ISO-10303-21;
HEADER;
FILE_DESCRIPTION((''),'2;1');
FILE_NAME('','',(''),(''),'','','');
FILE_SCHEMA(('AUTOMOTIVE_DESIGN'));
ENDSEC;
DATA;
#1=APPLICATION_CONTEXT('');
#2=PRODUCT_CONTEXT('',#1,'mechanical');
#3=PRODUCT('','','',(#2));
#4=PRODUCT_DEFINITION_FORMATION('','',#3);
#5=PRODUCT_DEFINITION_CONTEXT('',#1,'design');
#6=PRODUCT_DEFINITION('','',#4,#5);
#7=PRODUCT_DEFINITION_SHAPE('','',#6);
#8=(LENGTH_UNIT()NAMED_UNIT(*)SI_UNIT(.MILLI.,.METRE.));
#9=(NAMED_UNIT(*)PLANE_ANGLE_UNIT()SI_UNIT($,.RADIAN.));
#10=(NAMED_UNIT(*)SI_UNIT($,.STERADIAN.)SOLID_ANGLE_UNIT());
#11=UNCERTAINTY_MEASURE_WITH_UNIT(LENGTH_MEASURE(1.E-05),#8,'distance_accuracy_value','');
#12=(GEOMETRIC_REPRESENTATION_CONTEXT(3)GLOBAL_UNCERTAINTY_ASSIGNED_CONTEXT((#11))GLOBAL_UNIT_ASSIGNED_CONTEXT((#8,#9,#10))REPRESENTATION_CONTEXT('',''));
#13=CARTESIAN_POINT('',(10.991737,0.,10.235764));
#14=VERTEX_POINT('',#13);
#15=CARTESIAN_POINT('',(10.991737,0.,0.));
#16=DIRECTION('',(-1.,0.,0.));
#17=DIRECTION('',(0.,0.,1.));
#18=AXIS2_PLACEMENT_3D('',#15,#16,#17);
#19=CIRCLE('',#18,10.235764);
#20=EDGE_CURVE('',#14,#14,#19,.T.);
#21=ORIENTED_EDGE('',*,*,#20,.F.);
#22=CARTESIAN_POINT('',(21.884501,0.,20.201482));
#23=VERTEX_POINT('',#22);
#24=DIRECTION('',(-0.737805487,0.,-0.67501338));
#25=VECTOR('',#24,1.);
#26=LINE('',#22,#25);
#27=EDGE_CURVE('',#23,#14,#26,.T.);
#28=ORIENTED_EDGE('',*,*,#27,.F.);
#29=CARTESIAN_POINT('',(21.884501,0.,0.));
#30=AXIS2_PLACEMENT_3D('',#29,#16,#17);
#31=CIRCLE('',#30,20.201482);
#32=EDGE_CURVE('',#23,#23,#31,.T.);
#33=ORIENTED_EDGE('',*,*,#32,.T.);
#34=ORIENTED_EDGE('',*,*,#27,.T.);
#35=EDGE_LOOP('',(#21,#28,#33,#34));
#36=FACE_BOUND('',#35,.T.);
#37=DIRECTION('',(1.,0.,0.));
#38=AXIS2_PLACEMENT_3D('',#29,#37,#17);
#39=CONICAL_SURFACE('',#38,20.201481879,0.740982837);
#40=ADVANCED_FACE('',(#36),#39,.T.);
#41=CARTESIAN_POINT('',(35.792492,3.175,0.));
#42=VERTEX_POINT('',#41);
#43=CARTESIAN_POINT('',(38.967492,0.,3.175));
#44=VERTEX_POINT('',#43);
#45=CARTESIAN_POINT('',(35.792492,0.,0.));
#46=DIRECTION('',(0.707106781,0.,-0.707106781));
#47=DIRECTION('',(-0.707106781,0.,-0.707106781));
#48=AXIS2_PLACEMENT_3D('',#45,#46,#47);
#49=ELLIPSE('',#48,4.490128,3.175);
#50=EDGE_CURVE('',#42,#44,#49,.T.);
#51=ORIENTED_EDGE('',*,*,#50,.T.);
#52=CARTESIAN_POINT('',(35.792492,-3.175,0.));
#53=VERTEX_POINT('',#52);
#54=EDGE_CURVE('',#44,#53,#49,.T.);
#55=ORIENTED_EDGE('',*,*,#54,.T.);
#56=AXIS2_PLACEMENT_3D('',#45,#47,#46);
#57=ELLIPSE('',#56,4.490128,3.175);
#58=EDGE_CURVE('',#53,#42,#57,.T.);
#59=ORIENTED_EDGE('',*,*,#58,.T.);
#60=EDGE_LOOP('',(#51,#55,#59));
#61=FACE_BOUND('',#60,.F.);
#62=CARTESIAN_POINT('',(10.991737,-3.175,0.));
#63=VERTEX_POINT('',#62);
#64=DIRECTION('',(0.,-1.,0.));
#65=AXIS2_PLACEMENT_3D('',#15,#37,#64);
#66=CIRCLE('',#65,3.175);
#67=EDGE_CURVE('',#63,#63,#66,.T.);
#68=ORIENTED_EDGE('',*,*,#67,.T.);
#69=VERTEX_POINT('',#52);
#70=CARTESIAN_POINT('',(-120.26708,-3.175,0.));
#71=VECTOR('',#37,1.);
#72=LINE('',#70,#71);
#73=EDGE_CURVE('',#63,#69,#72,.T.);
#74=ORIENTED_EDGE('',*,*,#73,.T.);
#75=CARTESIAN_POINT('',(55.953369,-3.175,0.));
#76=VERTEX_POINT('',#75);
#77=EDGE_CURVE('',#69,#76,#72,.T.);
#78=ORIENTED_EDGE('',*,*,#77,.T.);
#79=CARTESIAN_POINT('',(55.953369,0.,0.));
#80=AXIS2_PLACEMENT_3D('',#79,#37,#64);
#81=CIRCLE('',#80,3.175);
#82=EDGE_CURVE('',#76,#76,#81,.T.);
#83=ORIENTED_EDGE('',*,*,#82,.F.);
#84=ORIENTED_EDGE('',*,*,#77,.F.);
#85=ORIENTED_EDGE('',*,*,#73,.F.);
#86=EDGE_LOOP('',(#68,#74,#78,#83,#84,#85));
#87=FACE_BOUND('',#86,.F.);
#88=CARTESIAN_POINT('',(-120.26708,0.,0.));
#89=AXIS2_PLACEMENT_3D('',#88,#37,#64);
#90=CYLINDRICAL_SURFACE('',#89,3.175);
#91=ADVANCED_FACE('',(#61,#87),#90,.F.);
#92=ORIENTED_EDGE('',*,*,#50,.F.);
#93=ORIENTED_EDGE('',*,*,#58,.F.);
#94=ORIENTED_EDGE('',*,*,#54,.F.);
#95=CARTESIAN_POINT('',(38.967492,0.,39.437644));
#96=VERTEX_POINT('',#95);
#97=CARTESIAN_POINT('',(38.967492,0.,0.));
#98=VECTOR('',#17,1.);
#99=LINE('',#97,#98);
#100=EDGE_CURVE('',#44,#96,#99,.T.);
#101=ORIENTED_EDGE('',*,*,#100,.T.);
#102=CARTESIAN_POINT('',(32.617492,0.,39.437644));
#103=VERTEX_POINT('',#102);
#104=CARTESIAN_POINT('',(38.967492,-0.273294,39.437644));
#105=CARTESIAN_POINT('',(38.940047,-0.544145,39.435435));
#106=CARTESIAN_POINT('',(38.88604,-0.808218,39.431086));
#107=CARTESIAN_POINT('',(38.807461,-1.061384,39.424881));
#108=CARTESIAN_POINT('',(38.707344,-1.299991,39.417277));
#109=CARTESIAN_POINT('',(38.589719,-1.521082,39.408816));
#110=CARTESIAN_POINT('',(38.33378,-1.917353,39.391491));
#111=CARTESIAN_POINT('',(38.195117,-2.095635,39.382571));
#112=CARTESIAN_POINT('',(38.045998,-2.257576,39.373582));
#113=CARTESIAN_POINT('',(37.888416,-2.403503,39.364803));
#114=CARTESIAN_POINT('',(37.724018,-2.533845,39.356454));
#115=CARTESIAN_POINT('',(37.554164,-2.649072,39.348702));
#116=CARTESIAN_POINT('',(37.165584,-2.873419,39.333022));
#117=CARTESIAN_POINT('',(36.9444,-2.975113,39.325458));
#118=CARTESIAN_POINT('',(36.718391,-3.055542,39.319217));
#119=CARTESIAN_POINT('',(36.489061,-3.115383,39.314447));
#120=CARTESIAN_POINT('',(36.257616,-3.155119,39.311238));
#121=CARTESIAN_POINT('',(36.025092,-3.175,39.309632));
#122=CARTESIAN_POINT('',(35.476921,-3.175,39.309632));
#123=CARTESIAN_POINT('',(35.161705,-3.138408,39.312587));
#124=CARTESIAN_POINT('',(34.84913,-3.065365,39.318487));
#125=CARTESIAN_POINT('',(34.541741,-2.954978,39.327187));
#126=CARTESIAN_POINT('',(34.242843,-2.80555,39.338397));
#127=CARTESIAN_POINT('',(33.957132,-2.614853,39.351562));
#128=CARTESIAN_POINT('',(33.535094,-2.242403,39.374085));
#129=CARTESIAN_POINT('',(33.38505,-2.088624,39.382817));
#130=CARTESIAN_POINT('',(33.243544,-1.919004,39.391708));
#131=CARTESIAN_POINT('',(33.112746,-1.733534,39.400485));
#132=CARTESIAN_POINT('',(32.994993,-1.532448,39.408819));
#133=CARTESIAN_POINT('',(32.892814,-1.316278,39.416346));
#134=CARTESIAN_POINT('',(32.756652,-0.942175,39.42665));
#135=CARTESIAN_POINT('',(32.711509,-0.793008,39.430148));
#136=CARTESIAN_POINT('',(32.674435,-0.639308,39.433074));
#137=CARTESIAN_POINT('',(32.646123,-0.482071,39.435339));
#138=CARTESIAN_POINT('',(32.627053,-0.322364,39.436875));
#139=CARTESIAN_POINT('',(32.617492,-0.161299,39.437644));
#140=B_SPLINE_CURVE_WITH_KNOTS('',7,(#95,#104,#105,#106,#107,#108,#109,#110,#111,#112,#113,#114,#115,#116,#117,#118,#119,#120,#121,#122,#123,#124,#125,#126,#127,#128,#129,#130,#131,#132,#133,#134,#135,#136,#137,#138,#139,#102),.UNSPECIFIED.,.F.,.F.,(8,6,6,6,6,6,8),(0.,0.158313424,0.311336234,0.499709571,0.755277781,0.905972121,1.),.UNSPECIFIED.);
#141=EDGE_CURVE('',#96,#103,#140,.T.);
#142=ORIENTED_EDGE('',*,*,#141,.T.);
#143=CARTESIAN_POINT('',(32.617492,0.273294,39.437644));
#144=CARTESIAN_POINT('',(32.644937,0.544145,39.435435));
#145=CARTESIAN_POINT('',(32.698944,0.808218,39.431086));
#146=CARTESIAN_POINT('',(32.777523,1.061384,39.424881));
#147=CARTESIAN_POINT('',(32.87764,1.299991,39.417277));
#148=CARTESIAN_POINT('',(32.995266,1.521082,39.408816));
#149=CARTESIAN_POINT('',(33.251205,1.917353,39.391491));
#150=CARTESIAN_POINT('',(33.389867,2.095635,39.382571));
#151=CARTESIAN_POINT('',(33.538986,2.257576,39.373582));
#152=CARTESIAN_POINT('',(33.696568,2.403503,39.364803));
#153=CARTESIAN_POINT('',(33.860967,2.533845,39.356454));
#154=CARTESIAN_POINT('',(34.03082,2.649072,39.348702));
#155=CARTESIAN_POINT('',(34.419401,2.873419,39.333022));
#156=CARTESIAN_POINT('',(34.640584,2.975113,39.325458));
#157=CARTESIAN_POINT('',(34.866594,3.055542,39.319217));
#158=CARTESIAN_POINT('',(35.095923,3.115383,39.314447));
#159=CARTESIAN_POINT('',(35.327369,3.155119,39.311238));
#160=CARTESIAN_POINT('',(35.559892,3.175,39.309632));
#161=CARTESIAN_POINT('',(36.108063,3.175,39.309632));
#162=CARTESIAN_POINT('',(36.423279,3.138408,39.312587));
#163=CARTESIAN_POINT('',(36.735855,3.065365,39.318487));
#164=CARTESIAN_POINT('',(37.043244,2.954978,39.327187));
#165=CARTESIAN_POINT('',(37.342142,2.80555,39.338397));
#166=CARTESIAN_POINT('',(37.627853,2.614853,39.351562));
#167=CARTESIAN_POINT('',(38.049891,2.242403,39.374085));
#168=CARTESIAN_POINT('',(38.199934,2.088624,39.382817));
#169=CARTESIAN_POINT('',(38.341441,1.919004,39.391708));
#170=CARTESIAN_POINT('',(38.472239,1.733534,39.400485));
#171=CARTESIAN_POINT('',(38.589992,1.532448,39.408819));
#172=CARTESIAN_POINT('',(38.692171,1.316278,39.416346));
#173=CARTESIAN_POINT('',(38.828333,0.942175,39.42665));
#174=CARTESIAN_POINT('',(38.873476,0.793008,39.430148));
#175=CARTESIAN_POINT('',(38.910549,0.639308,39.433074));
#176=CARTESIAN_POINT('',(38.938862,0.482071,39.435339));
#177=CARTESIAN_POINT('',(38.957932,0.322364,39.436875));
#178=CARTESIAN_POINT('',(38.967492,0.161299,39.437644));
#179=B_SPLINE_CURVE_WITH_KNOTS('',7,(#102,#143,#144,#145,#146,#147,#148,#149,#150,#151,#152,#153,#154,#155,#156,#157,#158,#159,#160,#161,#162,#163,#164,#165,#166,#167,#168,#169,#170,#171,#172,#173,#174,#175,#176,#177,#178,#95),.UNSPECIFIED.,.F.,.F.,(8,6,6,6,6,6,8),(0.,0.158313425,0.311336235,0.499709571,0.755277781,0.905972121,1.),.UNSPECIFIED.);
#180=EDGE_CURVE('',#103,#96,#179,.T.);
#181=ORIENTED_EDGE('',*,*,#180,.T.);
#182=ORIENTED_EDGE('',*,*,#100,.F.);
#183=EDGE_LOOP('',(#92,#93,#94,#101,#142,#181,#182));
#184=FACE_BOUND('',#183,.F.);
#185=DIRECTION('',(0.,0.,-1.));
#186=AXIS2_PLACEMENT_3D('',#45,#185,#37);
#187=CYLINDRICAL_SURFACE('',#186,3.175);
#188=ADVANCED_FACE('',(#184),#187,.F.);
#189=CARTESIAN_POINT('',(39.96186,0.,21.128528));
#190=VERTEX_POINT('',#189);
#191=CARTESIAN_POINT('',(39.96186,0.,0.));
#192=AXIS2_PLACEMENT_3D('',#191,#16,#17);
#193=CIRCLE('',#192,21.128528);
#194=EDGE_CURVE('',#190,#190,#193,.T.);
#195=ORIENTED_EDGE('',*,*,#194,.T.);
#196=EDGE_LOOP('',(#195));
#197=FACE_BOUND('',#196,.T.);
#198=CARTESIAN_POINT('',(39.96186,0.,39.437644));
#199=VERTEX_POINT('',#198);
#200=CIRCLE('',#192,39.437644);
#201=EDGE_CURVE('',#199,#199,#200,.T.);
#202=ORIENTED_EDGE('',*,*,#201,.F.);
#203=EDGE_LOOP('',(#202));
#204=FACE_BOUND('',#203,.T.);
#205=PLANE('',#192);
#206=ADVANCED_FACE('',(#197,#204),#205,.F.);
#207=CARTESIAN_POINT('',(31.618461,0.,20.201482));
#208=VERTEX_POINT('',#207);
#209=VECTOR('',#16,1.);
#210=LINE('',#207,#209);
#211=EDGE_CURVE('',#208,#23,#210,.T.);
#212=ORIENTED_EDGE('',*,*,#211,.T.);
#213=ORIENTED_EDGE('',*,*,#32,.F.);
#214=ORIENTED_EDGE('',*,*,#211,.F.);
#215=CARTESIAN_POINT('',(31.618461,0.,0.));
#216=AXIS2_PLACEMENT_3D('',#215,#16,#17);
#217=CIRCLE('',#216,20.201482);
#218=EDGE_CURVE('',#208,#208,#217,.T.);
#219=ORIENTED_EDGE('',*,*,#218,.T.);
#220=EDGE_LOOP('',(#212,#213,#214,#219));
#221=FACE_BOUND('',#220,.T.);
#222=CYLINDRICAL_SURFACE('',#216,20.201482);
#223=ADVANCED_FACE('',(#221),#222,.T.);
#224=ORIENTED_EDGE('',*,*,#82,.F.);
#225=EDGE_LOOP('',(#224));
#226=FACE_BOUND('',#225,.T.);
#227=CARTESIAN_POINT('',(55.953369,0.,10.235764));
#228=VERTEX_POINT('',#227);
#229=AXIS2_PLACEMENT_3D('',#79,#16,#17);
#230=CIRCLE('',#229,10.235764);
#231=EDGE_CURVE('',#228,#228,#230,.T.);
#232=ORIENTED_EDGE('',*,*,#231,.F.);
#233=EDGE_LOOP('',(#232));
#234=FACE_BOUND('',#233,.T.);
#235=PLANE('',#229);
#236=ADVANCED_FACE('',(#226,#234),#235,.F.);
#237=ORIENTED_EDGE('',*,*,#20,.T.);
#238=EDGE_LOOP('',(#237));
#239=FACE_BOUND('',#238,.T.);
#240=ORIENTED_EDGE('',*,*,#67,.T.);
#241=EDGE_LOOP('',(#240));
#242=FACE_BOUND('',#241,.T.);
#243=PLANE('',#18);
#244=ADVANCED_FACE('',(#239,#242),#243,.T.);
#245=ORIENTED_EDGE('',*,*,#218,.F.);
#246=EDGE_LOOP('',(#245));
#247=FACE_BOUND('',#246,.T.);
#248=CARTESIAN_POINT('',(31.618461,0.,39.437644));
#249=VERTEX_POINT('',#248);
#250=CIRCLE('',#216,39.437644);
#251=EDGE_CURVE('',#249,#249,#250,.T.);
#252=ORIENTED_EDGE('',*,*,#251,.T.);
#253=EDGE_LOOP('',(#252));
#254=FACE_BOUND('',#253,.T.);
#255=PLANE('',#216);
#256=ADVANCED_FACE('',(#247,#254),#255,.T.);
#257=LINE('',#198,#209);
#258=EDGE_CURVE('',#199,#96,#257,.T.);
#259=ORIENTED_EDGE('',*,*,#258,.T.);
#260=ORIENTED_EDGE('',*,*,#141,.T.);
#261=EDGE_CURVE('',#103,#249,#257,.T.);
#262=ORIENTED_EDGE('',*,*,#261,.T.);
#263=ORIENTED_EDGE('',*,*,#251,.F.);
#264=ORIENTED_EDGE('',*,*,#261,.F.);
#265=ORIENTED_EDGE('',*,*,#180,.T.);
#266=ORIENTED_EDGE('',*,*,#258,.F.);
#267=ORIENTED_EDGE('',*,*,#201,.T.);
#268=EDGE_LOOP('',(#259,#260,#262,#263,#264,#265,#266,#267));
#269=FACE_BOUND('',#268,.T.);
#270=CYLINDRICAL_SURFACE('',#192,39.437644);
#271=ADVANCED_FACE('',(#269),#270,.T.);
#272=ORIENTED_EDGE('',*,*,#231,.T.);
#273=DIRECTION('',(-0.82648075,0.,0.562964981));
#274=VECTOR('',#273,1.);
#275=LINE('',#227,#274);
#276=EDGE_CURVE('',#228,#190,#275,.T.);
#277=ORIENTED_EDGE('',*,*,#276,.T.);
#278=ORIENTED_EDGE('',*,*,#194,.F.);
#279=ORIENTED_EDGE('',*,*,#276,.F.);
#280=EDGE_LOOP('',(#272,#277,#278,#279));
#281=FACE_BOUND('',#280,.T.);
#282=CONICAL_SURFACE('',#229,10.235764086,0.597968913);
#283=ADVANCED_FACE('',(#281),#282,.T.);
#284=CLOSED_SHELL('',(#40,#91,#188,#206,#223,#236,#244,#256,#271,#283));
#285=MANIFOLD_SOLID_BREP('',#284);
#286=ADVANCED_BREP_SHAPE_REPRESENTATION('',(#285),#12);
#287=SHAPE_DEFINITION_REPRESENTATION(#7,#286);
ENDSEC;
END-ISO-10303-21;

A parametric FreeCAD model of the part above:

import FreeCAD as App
import Part
import Sketcher

V = App.Vector
Q = App.Units.Quantity

doc = App.newDocument("Part")
body = doc.addObject("PartDesign::Body", "Body")

# Sketch on XZ plane
sketch1 = body.newObject("Sketcher::SketchObject", "Sketch")
sketch1.AttachmentSupport = (doc.getObject("XZ_Plane"), [""])
sketch1.MapMode = "FlatFace"
sketch1.addGeometry([
    Part.LineSegment(V(11, 10, 0), V(11, 0, 0)),  # 0
    Part.LineSegment(V(11, 0, 0), V(56, 0, 0)),  # 1
    Part.LineSegment(V(56, 0, 0), V(56, 10, 0)),  # 2
    Part.LineSegment(V(56, 10, 0), V(40, 21, 0)),  # 3
    Part.LineSegment(V(40, 21, 0), V(40, 39, 0)),  # 4
    Part.LineSegment(V(40, 39, 0), V(32, 39, 0)),  # 5
    Part.LineSegment(V(32, 39, 0), V(32, 20, 0)),  # 6
    Part.LineSegment(V(32, 20, 0), V(22, 20, 0)),  # 7
    Part.LineSegment(V(22, 20, 0), V(11, 10, 0)),  # 8
], False)
sketch1.addConstraint([
    Sketcher.Constraint("Coincident", 0, 2, 1, 1),
    Sketcher.Constraint("Coincident", 1, 2, 2, 1),
    Sketcher.Constraint("Coincident", 2, 2, 3, 1),
    Sketcher.Constraint("Coincident", 3, 2, 4, 1),
    Sketcher.Constraint("Coincident", 4, 2, 5, 1),
    Sketcher.Constraint("Coincident", 5, 2, 6, 1),
    Sketcher.Constraint("Coincident", 6, 2, 7, 1),
    Sketcher.Constraint("Coincident", 7, 2, 8, 1),
    Sketcher.Constraint("Coincident", 8, 2, 0, 1),
    Sketcher.Constraint("Vertical", 0),
    Sketcher.Constraint("Horizontal", 1),
    Sketcher.Constraint("Vertical", 2),
    Sketcher.Constraint("Vertical", 4),
    Sketcher.Constraint("Horizontal", 5),
    Sketcher.Constraint("Vertical", 6),
    Sketcher.Constraint("Horizontal", 7),
    Sketcher.Constraint("PointOnObject", 0, 2, -1),
    Sketcher.Constraint("Horizontal", 2, 2, 8, 2),
    Sketcher.Constraint("DistanceX", 5, 2, 5, 1, Q("8.343399 mm")),
    Sketcher.Constraint("DistanceX", 1, 1, 1, 2, Q("44.961631 mm")),
    Sketcher.Constraint("DistanceX", 7, 2, 7, 1, Q("9.73396 mm")),
    Sketcher.Constraint("DistanceX", -1, 1, 7, 2, Q("21.884501 mm")),
    Sketcher.Constraint("Distance", 3, Q("19.348919 mm")),
    Sketcher.Constraint("DistanceY", 0, 2, 0, 1, Q("10.235764 mm")),
    Sketcher.Constraint("DistanceY", 4, 1, 4, 2, Q("18.309116 mm")),
    Sketcher.Constraint("DistanceY", 6, 2, 6, 1, Q("19.236162 mm")),
    Sketcher.Constraint("DistanceX", -1, 1, 1, 2, Q("55.953369 mm")),
])
revolution = body.newObject("PartDesign::Revolution", "Revolution")
revolution.Profile = sketch1
revolution.ReferenceAxis = (sketch1, ["H_Axis"])
revolution.Angle = 360

# Sketch on XY plane
sketch2 = body.newObject("Sketcher::SketchObject", "Sketch001")
sketch2.AttachmentSupport = (doc.getObject("XY_Plane"), [""])
sketch2.MapMode = "FlatFace"
sketch2.addGeometry(Part.Circle(V(35.8, 0, 0), V(0, 0, 1), 3.2), False)
sketch2.addConstraint([
    Sketcher.Constraint("PointOnObject", 0, 3, -1),
    Sketcher.Constraint("Diameter", 0, Q("0.25 in")),
    Sketcher.Constraint("DistanceX", -1, 1, 0, 3, Q("35.792492 mm")),
])
pocket1 = body.newObject("PartDesign::Pocket", "Pocket")
pocket1.Profile = sketch2
pocket1.Type = "ThroughAll"
pocket1.Reversed = True

# Sketch on YZ plane
sketch3 = body.newObject("Sketcher::SketchObject", "Sketch002")
sketch3.AttachmentSupport = (doc.getObject("YZ_Plane"), [""])
sketch3.MapMode = "FlatFace"
sketch3.addGeometry(Part.Circle(V(0, 0, 0), V(0, 0, 1), 3.2), False)
sketch3.addConstraint([
    Sketcher.Constraint("Coincident", 0, 3, -1, 1),
    Sketcher.Constraint("Diameter", 0, Q("0.25 in")),
])
doc.recompute()
hole = body.newObject("PartDesign::Hole", "Hole")
hole.Profile = sketch3
hole.ThreadType = "None"
hole.Diameter = Q("0.25 in")
hole.DepthType = "ThroughAll"
hole.Reversed = True

doc.recompute()
